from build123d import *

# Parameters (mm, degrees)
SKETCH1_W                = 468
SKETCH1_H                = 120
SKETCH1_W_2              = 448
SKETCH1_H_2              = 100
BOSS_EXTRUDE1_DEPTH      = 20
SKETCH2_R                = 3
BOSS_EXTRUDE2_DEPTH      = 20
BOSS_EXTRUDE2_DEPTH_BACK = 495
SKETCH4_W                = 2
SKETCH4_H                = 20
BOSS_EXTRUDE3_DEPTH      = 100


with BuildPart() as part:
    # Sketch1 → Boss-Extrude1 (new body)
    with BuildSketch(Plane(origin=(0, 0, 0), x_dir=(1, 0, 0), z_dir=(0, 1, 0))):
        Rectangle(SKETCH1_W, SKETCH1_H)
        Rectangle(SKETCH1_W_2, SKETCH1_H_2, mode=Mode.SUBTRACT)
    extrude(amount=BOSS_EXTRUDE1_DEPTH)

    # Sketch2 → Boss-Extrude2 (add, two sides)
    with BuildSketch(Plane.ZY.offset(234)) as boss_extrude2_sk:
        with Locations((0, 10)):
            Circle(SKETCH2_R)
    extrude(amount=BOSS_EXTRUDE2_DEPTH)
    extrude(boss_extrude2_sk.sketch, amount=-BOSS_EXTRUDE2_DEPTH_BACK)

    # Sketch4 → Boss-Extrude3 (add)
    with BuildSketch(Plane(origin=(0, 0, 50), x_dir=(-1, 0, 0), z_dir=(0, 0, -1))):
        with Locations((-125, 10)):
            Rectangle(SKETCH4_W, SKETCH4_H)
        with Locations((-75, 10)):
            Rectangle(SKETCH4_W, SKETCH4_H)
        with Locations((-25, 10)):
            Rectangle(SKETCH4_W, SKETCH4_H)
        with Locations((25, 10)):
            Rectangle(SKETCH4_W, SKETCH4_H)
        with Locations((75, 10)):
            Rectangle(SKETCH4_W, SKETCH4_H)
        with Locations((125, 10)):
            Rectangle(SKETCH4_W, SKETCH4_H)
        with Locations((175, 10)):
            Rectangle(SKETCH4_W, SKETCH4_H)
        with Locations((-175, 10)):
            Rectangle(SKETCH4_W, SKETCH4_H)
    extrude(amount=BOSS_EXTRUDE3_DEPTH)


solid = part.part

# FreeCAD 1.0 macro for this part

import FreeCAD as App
import Part
import Sketcher

doc = App.newDocument("Part")
body = doc.addObject("PartDesign::Body", "Body")

sketch1 = doc.addObject("Sketcher::SketchObject", "Sketch")
body.addObject(sketch1)
sketch1.AttachmentSupport = (doc.XZ_Plane, [""])
sketch1.MapMode = "FlatFace"
sketch1.addGeometry([
    Part.LineSegment(App.Vector(-234, -60, 0), App.Vector(-234, 60, 0)),
    Part.LineSegment(App.Vector(-234, 60, 0), App.Vector(234, 60, 0)),
    Part.LineSegment(App.Vector(234, 60, 0), App.Vector(234, -60, 0)),
    Part.LineSegment(App.Vector(234, -60, 0), App.Vector(-234, -60, 0)),
    Part.LineSegment(App.Vector(224, 50, 0), App.Vector(-224, 50, 0)),
    Part.LineSegment(App.Vector(-224, 50, 0), App.Vector(-224, -50, 0)),
    Part.LineSegment(App.Vector(-224, -50, 0), App.Vector(224, -50, 0)),
    Part.LineSegment(App.Vector(224, -50, 0), App.Vector(224, 50, 0)),
], False)
sketch1.addConstraint([
    Sketcher.Constraint("Coincident", 0, 2, 1, 1),
    Sketcher.Constraint("Coincident", 1, 2, 2, 1),
    Sketcher.Constraint("Coincident", 2, 2, 3, 1),
    Sketcher.Constraint("Coincident", 3, 2, 0, 1),
    Sketcher.Constraint("Coincident", 4, 2, 5, 1),
    Sketcher.Constraint("Coincident", 5, 2, 6, 1),
    Sketcher.Constraint("Coincident", 6, 2, 7, 1),
    Sketcher.Constraint("Coincident", 7, 2, 4, 1),
    Sketcher.Constraint("Vertical", 0),
    Sketcher.Constraint("Horizontal", 1),
    Sketcher.Constraint("Vertical", 2),
    Sketcher.Constraint("Horizontal", 3),
    Sketcher.Constraint("Horizontal", 4),
    Sketcher.Constraint("Vertical", 5),
    Sketcher.Constraint("Horizontal", 6),
    Sketcher.Constraint("Vertical", 7),
    Sketcher.Constraint("Symmetric", 0, 2, 2, 2, -1, 1),
    Sketcher.Constraint("Symmetric", 4, 2, 6, 2, -1, 1),
    Sketcher.Constraint("DistanceX", 1, 1, 1, 2, 468.0),
    Sketcher.Constraint("DistanceX", 4, 2, 4, 1, 448.0),
    Sketcher.Constraint("DistanceY", 0, 1, 0, 2, 120.0),
    Sketcher.Constraint("DistanceY", 5, 2, 5, 1, 100.0),
])
pad1 = doc.addObject("PartDesign::Pad", "Pad")
body.addObject(pad1)
pad1.Profile = sketch1
pad1.Length = 20
pad1.Reversed = True

sketch2 = doc.addObject("Sketcher::SketchObject", "Sketch001")
body.addObject(sketch2)
sketch2.AttachmentSupport = (doc.YZ_Plane, [""])
sketch2.MapMode = "FlatFace"
sketch2.AttachmentOffset = App.Placement(App.Vector(0, 0, -234), App.Rotation())
sketch2.addGeometry(Part.Circle(App.Vector(10, 0, 0), App.Vector(0, 0, 1), 3), False)
sketch2.addConstraint([
    Sketcher.Constraint("PointOnObject", 0, 3, -1),
    Sketcher.Constraint("Diameter", 0, 6.0),
    Sketcher.Constraint("DistanceX", -1, 1, 0, 3, 10.0),
])
pad2 = doc.addObject("PartDesign::Pad", "Pad001")
body.addObject(pad2)
pad2.Profile = sketch2
pad2.Type = "TwoLengths"
pad2.Length = 20
pad2.Length2 = 495
pad2.Reversed = True

sketch3 = doc.addObject("Sketcher::SketchObject", "Sketch002")
body.addObject(sketch3)
sketch3.AttachmentSupport = (doc.XY_Plane, [""])
sketch3.MapMode = "FlatFace"
sketch3.AttachmentOffset = App.Placement(App.Vector(0, 0, 50), App.Rotation())
sketch3.addGeometry([
    Part.LineSegment(App.Vector(126, 20, 0), App.Vector(126, 0, 0)),
    Part.LineSegment(App.Vector(126, 0, 0), App.Vector(124, 0, 0)),
    Part.LineSegment(App.Vector(124, 0, 0), App.Vector(124, 20, 0)),
    Part.LineSegment(App.Vector(124, 20, 0), App.Vector(126, 20, 0)),
    Part.LineSegment(App.Vector(76, 20, 0), App.Vector(76, 0, 0)),
    Part.LineSegment(App.Vector(76, 0, 0), App.Vector(74, 0, 0)),
    Part.LineSegment(App.Vector(74, 0, 0), App.Vector(74, 20, 0)),
    Part.LineSegment(App.Vector(74, 20, 0), App.Vector(76, 20, 0)),
    Part.LineSegment(App.Vector(26, 20, 0), App.Vector(26, 0, 0)),
    Part.LineSegment(App.Vector(26, 0, 0), App.Vector(24, 0, 0)),
    Part.LineSegment(App.Vector(24, 0, 0), App.Vector(24, 20, 0)),
    Part.LineSegment(App.Vector(24, 20, 0), App.Vector(26, 20, 0)),
    Part.LineSegment(App.Vector(-24, 20, 0), App.Vector(-24, 0, 0)),
    Part.LineSegment(App.Vector(-24, 0, 0), App.Vector(-26, 0, 0)),
    Part.LineSegment(App.Vector(-26, 0, 0), App.Vector(-26, 20, 0)),
    Part.LineSegment(App.Vector(-26, 20, 0), App.Vector(-24, 20, 0)),
    Part.LineSegment(App.Vector(-74, 20, 0), App.Vector(-74, 0, 0)),
    Part.LineSegment(App.Vector(-74, 0, 0), App.Vector(-76, 0, 0)),
    Part.LineSegment(App.Vector(-76, 0, 0), App.Vector(-76, 20, 0)),
    Part.LineSegment(App.Vector(-76, 20, 0), App.Vector(-74, 20, 0)),
    Part.LineSegment(App.Vector(-124, 20, 0), App.Vector(-124, 0, 0)),
    Part.LineSegment(App.Vector(-124, 0, 0), App.Vector(-126, 0, 0)),
    Part.LineSegment(App.Vector(-126, 0, 0), App.Vector(-126, 20, 0)),
    Part.LineSegment(App.Vector(-126, 20, 0), App.Vector(-124, 20, 0)),
    Part.LineSegment(App.Vector(-174, 20, 0), App.Vector(-174, 0, 0)),
    Part.LineSegment(App.Vector(-174, 0, 0), App.Vector(-176, 0, 0)),
    Part.LineSegment(App.Vector(-176, 0, 0), App.Vector(-176, 20, 0)),
    Part.LineSegment(App.Vector(-176, 20, 0), App.Vector(-174, 20, 0)),
    Part.LineSegment(App.Vector(176, 20, 0), App.Vector(176, 0, 0)),
    Part.LineSegment(App.Vector(176, 0, 0), App.Vector(174, 0, 0)),
    Part.LineSegment(App.Vector(174, 0, 0), App.Vector(174, 20, 0)),
    Part.LineSegment(App.Vector(174, 20, 0), App.Vector(176, 20, 0)),
], False)
sketch3.addConstraint([
    Sketcher.Constraint("Coincident", 0, 2, 1, 1),
    Sketcher.Constraint("Coincident", 1, 2, 2, 1),
    Sketcher.Constraint("Coincident", 2, 2, 3, 1),
    Sketcher.Constraint("Coincident", 3, 2, 0, 1),
    Sketcher.Constraint("Coincident", 4, 2, 5, 1),
    Sketcher.Constraint("Coincident", 5, 2, 6, 1),
    Sketcher.Constraint("Coincident", 6, 2, 7, 1),
    Sketcher.Constraint("Coincident", 7, 2, 4, 1),
    Sketcher.Constraint("Coincident", 8, 2, 9, 1),
    Sketcher.Constraint("Coincident", 9, 2, 10, 1),
    Sketcher.Constraint("Coincident", 10, 2, 11, 1),
    Sketcher.Constraint("Coincident", 11, 2, 8, 1),
    Sketcher.Constraint("Coincident", 12, 2, 13, 1),
    Sketcher.Constraint("Coincident", 13, 2, 14, 1),
    Sketcher.Constraint("Coincident", 14, 2, 15, 1),
    Sketcher.Constraint("Coincident", 15, 2, 12, 1),
    Sketcher.Constraint("Coincident", 16, 2, 17, 1),
    Sketcher.Constraint("Coincident", 17, 2, 18, 1),
    Sketcher.Constraint("Coincident", 18, 2, 19, 1),
    Sketcher.Constraint("Coincident", 19, 2, 16, 1),
    Sketcher.Constraint("Coincident", 20, 2, 21, 1),
    Sketcher.Constraint("Coincident", 21, 2, 22, 1),
    Sketcher.Constraint("Coincident", 22, 2, 23, 1),
    Sketcher.Constraint("Coincident", 23, 2, 20, 1),
    Sketcher.Constraint("Coincident", 24, 2, 25, 1),
    Sketcher.Constraint("Coincident", 25, 2, 26, 1),
    Sketcher.Constraint("Coincident", 26, 2, 27, 1),
    Sketcher.Constraint("Coincident", 27, 2, 24, 1),
    Sketcher.Constraint("Coincident", 28, 2, 29, 1),
    Sketcher.Constraint("Coincident", 29, 2, 30, 1),
    Sketcher.Constraint("Coincident", 30, 2, 31, 1),
    Sketcher.Constraint("Coincident", 31, 2, 28, 1),
    Sketcher.Constraint("Vertical", 0),
    Sketcher.Constraint("Horizontal", 1),
    Sketcher.Constraint("Vertical", 2),
    Sketcher.Constraint("Horizontal", 3),
    Sketcher.Constraint("Vertical", 4),
    Sketcher.Constraint("Horizontal", 5),
    Sketcher.Constraint("Vertical", 6),
    Sketcher.Constraint("Horizontal", 7),
    Sketcher.Constraint("Vertical", 8),
    Sketcher.Constraint("Horizontal", 9),
    Sketcher.Constraint("Vertical", 10),
    Sketcher.Constraint("Horizontal", 11),
    Sketcher.Constraint("Vertical", 12),
    Sketcher.Constraint("Horizontal", 13),
    Sketcher.Constraint("Vertical", 14),
    Sketcher.Constraint("Horizontal", 15),
    Sketcher.Constraint("Vertical", 16),
    Sketcher.Constraint("Horizontal", 17),
    Sketcher.Constraint("Vertical", 18),
    Sketcher.Constraint("Horizontal", 19),
    Sketcher.Constraint("Vertical", 20),
    Sketcher.Constraint("Horizontal", 21),
    Sketcher.Constraint("Vertical", 22),
    Sketcher.Constraint("Horizontal", 23),
    Sketcher.Constraint("Vertical", 24),
    Sketcher.Constraint("Horizontal", 25),
    Sketcher.Constraint("Vertical", 26),
    Sketcher.Constraint("Horizontal", 27),
    Sketcher.Constraint("Vertical", 28),
    Sketcher.Constraint("Horizontal", 29),
    Sketcher.Constraint("Vertical", 30),
    Sketcher.Constraint("Horizontal", 31),
    Sketcher.Constraint("Symmetric", 9, 2, 12, 2, -1, 1),
    Sketcher.Constraint("Symmetric", 5, 2, 16, 2, -1, 1),
    Sketcher.Constraint("Symmetric", 1, 2, 20, 2, -1, 1),
    Sketcher.Constraint("Symmetric", 25, 2, 28, 2, -1, 1),
    Sketcher.Constraint("Symmetric", 8, 2, 13, 2, -2),
    Sketcher.Constraint("Symmetric", 4, 2, 17, 2, -2),
    Sketcher.Constraint("Symmetric", 0, 2, 21, 2, -2),
    Sketcher.Constraint("Symmetric", 24, 2, 29, 2, -2),
    Sketcher.Constraint("Horizontal", 3, 2, 6, 2),
    Sketcher.Constraint("Horizontal", 7, 2, 10, 2),
    Sketcher.Constraint("Horizontal", 11, 2, 14, 2),
    Sketcher.Constraint("Horizontal", 15, 2, 18, 2),
    Sketcher.Constraint("Horizontal", 19, 2, 22, 2),
    Sketcher.Constraint("Horizontal", 23, 2, 26, 2),
    Sketcher.Constraint("Horizontal", 27, 2, 30, 2),
    Sketcher.Constraint("Equal", 3, 5),
    Sketcher.Constraint("Equal", 7, 9),
    Sketcher.Constraint("Equal", 23, 25),
    Sketcher.Constraint("DistanceX", 1, 2, 1, 1, 2.0),
    Sketcher.Constraint("DistanceY", 0, 2, 0, 1, 20.0),
    Sketcher.Constraint("DistanceX", -1, 1, 0, 2, 126.0),
    Sketcher.Constraint("DistanceX", -1, 1, 4, 2, 76.0),
    Sketcher.Constraint("DistanceX", -1, 1, 8, 2, 26.0),
    Sketcher.Constraint("DistanceX", 24, 2, -1, 1, 174.0),
])
pad3 = doc.addObject("PartDesign::Pad", "Pad002")
body.addObject(pad3)
pad3.Profile = sketch3
pad3.Length = 100
pad3.Reversed = True

doc.recompute()
